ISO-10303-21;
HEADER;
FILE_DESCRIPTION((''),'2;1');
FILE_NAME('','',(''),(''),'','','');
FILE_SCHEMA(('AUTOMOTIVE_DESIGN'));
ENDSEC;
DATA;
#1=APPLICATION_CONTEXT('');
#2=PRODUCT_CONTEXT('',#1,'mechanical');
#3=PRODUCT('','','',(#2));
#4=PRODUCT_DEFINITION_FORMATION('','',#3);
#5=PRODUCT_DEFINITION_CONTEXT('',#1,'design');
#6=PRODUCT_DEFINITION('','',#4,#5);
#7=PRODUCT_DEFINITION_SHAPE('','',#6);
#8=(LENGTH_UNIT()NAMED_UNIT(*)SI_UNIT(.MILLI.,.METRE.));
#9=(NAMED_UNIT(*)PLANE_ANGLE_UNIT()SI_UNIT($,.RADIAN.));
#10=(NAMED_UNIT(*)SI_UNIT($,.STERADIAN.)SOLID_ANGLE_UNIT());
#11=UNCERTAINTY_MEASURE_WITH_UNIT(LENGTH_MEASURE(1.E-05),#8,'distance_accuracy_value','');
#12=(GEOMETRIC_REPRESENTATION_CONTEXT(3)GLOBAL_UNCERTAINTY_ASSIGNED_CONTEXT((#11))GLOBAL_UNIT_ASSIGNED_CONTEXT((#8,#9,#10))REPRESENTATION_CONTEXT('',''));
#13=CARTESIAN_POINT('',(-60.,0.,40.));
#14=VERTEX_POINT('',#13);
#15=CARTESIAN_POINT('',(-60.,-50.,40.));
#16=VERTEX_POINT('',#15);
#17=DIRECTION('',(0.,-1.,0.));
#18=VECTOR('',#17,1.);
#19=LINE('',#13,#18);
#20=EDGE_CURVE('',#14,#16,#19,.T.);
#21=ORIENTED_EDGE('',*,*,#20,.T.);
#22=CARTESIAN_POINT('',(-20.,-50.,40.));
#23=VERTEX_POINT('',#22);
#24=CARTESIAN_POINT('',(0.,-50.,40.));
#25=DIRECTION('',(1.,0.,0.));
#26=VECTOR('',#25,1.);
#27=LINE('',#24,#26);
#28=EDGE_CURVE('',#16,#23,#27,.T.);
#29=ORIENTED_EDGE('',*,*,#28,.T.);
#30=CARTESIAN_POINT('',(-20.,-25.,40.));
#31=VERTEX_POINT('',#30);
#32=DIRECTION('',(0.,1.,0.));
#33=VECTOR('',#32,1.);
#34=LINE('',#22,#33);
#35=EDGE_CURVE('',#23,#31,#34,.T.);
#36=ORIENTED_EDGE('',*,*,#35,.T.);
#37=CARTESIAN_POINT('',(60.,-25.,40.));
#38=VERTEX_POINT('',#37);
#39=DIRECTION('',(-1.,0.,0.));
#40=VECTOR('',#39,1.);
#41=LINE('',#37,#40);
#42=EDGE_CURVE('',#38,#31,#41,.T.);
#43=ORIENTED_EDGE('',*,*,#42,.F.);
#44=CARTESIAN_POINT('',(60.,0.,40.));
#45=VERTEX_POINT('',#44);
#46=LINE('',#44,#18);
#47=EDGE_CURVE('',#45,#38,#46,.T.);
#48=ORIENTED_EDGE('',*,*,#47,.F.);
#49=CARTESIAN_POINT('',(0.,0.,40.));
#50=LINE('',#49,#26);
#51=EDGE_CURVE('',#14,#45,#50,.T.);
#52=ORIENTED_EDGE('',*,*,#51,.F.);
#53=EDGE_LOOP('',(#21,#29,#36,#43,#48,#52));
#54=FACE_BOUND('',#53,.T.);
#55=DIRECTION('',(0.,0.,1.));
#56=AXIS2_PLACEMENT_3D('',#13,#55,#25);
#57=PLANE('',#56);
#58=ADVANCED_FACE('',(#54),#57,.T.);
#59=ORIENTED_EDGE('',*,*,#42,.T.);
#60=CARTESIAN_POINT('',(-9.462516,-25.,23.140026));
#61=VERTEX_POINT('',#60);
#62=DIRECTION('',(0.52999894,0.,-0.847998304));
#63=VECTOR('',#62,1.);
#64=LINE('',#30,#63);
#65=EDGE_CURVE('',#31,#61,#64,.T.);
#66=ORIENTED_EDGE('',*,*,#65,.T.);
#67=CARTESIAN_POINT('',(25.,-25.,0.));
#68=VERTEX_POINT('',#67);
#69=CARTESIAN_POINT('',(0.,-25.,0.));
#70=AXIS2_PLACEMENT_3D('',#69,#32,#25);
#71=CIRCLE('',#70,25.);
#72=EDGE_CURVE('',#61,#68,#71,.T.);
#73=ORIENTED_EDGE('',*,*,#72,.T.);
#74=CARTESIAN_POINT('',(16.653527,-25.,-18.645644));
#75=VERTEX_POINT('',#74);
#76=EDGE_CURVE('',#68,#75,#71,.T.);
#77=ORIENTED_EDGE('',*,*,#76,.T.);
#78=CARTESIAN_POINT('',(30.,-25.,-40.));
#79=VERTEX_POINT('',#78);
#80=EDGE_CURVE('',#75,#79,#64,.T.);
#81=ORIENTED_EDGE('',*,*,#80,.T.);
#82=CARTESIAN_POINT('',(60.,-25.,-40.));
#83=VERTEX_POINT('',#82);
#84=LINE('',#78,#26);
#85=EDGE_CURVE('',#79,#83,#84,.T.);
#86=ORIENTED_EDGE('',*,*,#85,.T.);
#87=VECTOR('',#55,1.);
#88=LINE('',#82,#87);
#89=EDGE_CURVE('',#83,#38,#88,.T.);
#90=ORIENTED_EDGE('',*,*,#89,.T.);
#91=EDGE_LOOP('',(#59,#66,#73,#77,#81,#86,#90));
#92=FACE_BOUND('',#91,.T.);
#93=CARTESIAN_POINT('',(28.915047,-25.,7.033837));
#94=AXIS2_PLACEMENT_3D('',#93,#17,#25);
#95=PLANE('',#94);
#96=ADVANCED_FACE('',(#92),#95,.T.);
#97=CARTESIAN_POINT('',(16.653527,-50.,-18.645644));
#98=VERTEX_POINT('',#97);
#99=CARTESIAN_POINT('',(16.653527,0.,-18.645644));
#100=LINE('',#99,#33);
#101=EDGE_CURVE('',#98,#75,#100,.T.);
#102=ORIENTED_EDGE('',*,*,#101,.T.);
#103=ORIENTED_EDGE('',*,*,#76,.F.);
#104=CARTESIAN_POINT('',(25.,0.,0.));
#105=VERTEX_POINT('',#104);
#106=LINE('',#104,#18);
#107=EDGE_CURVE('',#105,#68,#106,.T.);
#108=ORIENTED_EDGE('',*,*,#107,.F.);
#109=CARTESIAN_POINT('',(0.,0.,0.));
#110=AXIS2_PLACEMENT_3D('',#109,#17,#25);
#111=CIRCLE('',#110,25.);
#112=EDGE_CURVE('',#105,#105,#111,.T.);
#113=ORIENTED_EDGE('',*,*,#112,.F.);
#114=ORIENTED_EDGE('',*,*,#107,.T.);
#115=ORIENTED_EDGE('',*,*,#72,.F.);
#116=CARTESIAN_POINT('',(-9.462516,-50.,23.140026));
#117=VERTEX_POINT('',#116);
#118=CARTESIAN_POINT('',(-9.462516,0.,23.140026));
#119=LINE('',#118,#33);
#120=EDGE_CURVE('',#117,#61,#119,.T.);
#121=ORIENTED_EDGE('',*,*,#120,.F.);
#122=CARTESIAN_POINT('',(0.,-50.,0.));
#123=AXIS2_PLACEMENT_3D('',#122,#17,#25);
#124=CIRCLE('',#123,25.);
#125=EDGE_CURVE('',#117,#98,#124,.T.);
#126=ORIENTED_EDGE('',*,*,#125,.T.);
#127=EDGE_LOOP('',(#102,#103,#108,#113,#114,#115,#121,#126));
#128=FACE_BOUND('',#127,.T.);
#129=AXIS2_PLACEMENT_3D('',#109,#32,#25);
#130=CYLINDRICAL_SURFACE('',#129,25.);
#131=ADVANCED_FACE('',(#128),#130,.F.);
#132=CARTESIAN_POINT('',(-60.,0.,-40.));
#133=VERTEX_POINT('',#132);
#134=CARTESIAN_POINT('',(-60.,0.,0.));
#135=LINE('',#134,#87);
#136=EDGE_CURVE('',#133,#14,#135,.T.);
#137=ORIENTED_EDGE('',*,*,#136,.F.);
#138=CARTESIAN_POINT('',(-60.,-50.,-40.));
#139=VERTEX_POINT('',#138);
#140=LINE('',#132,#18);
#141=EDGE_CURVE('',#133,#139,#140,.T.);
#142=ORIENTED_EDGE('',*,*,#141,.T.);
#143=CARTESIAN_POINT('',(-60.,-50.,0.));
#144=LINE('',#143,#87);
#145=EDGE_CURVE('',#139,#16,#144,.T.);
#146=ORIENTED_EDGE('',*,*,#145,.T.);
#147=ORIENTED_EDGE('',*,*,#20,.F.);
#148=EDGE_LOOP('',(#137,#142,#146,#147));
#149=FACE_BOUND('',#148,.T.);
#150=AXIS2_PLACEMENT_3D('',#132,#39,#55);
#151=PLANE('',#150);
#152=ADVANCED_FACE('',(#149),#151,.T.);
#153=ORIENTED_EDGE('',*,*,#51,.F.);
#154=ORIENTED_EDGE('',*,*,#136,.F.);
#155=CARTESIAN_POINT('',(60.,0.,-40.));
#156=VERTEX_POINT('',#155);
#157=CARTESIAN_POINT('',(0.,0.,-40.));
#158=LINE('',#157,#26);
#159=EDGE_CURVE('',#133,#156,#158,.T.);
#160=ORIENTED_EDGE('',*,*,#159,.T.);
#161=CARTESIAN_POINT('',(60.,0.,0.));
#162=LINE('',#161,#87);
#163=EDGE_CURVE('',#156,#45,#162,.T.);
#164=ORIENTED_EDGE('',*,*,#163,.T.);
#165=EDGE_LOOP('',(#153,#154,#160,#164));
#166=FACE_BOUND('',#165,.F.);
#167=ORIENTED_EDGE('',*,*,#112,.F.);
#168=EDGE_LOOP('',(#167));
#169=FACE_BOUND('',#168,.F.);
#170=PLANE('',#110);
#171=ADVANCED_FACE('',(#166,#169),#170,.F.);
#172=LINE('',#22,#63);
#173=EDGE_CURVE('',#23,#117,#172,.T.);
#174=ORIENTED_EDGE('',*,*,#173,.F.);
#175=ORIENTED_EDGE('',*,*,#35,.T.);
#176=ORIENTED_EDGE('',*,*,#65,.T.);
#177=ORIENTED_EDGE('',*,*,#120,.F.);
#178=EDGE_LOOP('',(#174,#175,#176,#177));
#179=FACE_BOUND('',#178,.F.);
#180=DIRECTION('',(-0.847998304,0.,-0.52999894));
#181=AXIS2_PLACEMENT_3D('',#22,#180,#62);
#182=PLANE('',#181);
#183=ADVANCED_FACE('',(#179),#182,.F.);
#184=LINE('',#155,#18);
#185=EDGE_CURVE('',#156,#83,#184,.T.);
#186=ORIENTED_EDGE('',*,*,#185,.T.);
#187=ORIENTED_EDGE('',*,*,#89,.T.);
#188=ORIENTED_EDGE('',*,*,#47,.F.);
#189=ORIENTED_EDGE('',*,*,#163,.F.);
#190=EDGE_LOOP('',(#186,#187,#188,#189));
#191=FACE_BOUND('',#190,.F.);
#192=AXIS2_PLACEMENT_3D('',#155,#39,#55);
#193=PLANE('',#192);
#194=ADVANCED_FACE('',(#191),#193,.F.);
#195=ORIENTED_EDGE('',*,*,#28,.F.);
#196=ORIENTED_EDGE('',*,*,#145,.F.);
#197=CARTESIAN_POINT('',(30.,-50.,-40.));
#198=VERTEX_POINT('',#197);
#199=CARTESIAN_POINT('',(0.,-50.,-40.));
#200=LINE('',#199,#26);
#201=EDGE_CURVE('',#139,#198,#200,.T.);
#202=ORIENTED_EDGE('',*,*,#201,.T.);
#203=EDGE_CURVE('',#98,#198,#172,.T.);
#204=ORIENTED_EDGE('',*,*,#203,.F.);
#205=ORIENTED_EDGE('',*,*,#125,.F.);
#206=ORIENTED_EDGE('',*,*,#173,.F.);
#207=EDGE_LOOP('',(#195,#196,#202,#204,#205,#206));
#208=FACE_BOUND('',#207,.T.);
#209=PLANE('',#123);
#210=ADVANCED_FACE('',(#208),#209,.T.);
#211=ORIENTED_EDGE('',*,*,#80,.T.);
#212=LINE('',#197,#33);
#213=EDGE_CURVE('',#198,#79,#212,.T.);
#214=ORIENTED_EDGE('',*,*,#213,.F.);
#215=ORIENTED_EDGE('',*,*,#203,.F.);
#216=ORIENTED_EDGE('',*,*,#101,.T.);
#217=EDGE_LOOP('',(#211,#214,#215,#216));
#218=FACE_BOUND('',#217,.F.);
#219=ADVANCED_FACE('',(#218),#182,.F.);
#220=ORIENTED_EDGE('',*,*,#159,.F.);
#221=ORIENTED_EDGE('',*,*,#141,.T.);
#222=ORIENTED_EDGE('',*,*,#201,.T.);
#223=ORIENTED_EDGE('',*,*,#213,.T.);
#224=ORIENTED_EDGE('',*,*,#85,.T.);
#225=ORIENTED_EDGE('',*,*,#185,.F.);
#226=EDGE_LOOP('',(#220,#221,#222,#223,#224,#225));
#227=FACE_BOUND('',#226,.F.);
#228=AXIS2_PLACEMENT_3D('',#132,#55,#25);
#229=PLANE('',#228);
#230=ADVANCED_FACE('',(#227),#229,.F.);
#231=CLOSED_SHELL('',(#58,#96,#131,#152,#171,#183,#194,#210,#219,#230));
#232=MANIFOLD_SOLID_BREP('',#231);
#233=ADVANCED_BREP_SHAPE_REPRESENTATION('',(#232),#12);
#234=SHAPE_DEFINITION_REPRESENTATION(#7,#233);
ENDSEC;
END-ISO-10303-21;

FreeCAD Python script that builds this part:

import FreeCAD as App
import Part
import Sketcher

V = App.Vector
Q = App.Units.Quantity

doc = App.newDocument("Part")
body = doc.addObject("PartDesign::Body", "Body")

# Sketch on XZ plane
sketch1 = body.newObject("Sketcher::SketchObject", "Sketch")
sketch1.AttachmentSupport = (doc.getObject("XZ_Plane"), [""])
sketch1.MapMode = "FlatFace"
sketch1.addGeometry(Part.LineSegment(V(-60, 40, 0), V(-60, -40, 0)), False)
sketch1.addGeometry(Part.LineSegment(V(-60, -40, 0), V(60, -40, 0)), False)
sketch1.addGeometry(Part.LineSegment(V(60, -40, 0), V(60, 40, 0)), False)
sketch1.addGeometry(Part.LineSegment(V(60, 40, 0), V(-60, 40, 0)), False)
sketch1.addGeometry(Part.Circle(V(0, 0, 0), V(0, 0, 1), 25), False)
sketch1.addConstraint(Sketcher.Constraint("Coincident", 0, 2, 1, 1))
sketch1.addConstraint(Sketcher.Constraint("Coincident", 1, 2, 2, 1))
sketch1.addConstraint(Sketcher.Constraint("Coincident", 2, 2, 3, 1))
sketch1.addConstraint(Sketcher.Constraint("Coincident", 3, 2, 0, 1))
sketch1.addConstraint(Sketcher.Constraint("Vertical", 0))
sketch1.addConstraint(Sketcher.Constraint("Horizontal", 1))
sketch1.addConstraint(Sketcher.Constraint("Vertical", 2))
sketch1.addConstraint(Sketcher.Constraint("Horizontal", 3))
sketch1.addConstraint(Sketcher.Constraint("Coincident", 4, 3, -1, 1))
sketch1.addConstraint(Sketcher.Constraint("Symmetric", 0, 2, 2, 2, -1, 1))
sketch1.addConstraint(Sketcher.Constraint("Diameter", 4, Q("50 mm")))
sketch1.addConstraint(Sketcher.Constraint("DistanceX", 1, 1, 1, 2, Q("120 mm")))
sketch1.addConstraint(Sketcher.Constraint("DistanceY", 0, 2, 0, 1, Q("80 mm")))
pad1 = body.newObject("PartDesign::Pad", "Pad")
pad1.Profile = sketch1
pad1.Length = 50

# Sketch on XZ plane
sketch2 = body.newObject("Sketcher::SketchObject", "Sketch001")
sketch2.AttachmentSupport = (doc.getObject("XZ_Plane"), [""])
sketch2.MapMode = "FlatFace"
sketch2.AttachmentOffset = App.Placement(V(0, 0, 50), App.Rotation())
sketch2.addGeometry(Part.LineSegment(V(60, -40, 0), V(60, 40, 0)), False)
sketch2.addGeometry(Part.LineSegment(V(60, 40, 0), V(-20, 40, 0)), False)
sketch2.addGeometry(Part.LineSegment(V(-20, 40, 0), V(30, -40, 0)), False)
sketch2.addGeometry(Part.LineSegment(V(30, -40, 0), V(60, -40, 0)), False)
sketch2.addConstraint(Sketcher.Constraint("Coincident", 0, 2, 1, 1))
sketch2.addConstraint(Sketcher.Constraint("Coincident", 1, 2, 2, 1))
sketch2.addConstraint(Sketcher.Constraint("Coincident", 2, 2, 3, 1))
sketch2.addConstraint(Sketcher.Constraint("Coincident", 3, 2, 0, 1))
sketch2.addConstraint(Sketcher.Constraint("Vertical", 0))
sketch2.addConstraint(Sketcher.Constraint("Horizontal", 1))
sketch2.addConstraint(Sketcher.Constraint("Horizontal", 3))
sketch2.addConstraint(Sketcher.Constraint("Equal", 1, 0))
sketch2.addConstraint(Sketcher.Constraint("DistanceX", 1, 2, 1, 1, Q("80 mm")))
sketch2.addConstraint(Sketcher.Constraint("DistanceX", 3, 1, 3, 2, Q("30 mm")))
sketch2.addConstraint(Sketcher.Constraint("DistanceX", -1, 1, 0, 2, Q("60 mm")))
sketch2.addConstraint(Sketcher.Constraint("DistanceY", -1, 1, 0, 2, Q("40 mm")))
pocket1 = body.newObject("PartDesign::Pocket", "Pocket")
pocket1.Profile = sketch2
pocket1.Length = 25

doc.recompute()
